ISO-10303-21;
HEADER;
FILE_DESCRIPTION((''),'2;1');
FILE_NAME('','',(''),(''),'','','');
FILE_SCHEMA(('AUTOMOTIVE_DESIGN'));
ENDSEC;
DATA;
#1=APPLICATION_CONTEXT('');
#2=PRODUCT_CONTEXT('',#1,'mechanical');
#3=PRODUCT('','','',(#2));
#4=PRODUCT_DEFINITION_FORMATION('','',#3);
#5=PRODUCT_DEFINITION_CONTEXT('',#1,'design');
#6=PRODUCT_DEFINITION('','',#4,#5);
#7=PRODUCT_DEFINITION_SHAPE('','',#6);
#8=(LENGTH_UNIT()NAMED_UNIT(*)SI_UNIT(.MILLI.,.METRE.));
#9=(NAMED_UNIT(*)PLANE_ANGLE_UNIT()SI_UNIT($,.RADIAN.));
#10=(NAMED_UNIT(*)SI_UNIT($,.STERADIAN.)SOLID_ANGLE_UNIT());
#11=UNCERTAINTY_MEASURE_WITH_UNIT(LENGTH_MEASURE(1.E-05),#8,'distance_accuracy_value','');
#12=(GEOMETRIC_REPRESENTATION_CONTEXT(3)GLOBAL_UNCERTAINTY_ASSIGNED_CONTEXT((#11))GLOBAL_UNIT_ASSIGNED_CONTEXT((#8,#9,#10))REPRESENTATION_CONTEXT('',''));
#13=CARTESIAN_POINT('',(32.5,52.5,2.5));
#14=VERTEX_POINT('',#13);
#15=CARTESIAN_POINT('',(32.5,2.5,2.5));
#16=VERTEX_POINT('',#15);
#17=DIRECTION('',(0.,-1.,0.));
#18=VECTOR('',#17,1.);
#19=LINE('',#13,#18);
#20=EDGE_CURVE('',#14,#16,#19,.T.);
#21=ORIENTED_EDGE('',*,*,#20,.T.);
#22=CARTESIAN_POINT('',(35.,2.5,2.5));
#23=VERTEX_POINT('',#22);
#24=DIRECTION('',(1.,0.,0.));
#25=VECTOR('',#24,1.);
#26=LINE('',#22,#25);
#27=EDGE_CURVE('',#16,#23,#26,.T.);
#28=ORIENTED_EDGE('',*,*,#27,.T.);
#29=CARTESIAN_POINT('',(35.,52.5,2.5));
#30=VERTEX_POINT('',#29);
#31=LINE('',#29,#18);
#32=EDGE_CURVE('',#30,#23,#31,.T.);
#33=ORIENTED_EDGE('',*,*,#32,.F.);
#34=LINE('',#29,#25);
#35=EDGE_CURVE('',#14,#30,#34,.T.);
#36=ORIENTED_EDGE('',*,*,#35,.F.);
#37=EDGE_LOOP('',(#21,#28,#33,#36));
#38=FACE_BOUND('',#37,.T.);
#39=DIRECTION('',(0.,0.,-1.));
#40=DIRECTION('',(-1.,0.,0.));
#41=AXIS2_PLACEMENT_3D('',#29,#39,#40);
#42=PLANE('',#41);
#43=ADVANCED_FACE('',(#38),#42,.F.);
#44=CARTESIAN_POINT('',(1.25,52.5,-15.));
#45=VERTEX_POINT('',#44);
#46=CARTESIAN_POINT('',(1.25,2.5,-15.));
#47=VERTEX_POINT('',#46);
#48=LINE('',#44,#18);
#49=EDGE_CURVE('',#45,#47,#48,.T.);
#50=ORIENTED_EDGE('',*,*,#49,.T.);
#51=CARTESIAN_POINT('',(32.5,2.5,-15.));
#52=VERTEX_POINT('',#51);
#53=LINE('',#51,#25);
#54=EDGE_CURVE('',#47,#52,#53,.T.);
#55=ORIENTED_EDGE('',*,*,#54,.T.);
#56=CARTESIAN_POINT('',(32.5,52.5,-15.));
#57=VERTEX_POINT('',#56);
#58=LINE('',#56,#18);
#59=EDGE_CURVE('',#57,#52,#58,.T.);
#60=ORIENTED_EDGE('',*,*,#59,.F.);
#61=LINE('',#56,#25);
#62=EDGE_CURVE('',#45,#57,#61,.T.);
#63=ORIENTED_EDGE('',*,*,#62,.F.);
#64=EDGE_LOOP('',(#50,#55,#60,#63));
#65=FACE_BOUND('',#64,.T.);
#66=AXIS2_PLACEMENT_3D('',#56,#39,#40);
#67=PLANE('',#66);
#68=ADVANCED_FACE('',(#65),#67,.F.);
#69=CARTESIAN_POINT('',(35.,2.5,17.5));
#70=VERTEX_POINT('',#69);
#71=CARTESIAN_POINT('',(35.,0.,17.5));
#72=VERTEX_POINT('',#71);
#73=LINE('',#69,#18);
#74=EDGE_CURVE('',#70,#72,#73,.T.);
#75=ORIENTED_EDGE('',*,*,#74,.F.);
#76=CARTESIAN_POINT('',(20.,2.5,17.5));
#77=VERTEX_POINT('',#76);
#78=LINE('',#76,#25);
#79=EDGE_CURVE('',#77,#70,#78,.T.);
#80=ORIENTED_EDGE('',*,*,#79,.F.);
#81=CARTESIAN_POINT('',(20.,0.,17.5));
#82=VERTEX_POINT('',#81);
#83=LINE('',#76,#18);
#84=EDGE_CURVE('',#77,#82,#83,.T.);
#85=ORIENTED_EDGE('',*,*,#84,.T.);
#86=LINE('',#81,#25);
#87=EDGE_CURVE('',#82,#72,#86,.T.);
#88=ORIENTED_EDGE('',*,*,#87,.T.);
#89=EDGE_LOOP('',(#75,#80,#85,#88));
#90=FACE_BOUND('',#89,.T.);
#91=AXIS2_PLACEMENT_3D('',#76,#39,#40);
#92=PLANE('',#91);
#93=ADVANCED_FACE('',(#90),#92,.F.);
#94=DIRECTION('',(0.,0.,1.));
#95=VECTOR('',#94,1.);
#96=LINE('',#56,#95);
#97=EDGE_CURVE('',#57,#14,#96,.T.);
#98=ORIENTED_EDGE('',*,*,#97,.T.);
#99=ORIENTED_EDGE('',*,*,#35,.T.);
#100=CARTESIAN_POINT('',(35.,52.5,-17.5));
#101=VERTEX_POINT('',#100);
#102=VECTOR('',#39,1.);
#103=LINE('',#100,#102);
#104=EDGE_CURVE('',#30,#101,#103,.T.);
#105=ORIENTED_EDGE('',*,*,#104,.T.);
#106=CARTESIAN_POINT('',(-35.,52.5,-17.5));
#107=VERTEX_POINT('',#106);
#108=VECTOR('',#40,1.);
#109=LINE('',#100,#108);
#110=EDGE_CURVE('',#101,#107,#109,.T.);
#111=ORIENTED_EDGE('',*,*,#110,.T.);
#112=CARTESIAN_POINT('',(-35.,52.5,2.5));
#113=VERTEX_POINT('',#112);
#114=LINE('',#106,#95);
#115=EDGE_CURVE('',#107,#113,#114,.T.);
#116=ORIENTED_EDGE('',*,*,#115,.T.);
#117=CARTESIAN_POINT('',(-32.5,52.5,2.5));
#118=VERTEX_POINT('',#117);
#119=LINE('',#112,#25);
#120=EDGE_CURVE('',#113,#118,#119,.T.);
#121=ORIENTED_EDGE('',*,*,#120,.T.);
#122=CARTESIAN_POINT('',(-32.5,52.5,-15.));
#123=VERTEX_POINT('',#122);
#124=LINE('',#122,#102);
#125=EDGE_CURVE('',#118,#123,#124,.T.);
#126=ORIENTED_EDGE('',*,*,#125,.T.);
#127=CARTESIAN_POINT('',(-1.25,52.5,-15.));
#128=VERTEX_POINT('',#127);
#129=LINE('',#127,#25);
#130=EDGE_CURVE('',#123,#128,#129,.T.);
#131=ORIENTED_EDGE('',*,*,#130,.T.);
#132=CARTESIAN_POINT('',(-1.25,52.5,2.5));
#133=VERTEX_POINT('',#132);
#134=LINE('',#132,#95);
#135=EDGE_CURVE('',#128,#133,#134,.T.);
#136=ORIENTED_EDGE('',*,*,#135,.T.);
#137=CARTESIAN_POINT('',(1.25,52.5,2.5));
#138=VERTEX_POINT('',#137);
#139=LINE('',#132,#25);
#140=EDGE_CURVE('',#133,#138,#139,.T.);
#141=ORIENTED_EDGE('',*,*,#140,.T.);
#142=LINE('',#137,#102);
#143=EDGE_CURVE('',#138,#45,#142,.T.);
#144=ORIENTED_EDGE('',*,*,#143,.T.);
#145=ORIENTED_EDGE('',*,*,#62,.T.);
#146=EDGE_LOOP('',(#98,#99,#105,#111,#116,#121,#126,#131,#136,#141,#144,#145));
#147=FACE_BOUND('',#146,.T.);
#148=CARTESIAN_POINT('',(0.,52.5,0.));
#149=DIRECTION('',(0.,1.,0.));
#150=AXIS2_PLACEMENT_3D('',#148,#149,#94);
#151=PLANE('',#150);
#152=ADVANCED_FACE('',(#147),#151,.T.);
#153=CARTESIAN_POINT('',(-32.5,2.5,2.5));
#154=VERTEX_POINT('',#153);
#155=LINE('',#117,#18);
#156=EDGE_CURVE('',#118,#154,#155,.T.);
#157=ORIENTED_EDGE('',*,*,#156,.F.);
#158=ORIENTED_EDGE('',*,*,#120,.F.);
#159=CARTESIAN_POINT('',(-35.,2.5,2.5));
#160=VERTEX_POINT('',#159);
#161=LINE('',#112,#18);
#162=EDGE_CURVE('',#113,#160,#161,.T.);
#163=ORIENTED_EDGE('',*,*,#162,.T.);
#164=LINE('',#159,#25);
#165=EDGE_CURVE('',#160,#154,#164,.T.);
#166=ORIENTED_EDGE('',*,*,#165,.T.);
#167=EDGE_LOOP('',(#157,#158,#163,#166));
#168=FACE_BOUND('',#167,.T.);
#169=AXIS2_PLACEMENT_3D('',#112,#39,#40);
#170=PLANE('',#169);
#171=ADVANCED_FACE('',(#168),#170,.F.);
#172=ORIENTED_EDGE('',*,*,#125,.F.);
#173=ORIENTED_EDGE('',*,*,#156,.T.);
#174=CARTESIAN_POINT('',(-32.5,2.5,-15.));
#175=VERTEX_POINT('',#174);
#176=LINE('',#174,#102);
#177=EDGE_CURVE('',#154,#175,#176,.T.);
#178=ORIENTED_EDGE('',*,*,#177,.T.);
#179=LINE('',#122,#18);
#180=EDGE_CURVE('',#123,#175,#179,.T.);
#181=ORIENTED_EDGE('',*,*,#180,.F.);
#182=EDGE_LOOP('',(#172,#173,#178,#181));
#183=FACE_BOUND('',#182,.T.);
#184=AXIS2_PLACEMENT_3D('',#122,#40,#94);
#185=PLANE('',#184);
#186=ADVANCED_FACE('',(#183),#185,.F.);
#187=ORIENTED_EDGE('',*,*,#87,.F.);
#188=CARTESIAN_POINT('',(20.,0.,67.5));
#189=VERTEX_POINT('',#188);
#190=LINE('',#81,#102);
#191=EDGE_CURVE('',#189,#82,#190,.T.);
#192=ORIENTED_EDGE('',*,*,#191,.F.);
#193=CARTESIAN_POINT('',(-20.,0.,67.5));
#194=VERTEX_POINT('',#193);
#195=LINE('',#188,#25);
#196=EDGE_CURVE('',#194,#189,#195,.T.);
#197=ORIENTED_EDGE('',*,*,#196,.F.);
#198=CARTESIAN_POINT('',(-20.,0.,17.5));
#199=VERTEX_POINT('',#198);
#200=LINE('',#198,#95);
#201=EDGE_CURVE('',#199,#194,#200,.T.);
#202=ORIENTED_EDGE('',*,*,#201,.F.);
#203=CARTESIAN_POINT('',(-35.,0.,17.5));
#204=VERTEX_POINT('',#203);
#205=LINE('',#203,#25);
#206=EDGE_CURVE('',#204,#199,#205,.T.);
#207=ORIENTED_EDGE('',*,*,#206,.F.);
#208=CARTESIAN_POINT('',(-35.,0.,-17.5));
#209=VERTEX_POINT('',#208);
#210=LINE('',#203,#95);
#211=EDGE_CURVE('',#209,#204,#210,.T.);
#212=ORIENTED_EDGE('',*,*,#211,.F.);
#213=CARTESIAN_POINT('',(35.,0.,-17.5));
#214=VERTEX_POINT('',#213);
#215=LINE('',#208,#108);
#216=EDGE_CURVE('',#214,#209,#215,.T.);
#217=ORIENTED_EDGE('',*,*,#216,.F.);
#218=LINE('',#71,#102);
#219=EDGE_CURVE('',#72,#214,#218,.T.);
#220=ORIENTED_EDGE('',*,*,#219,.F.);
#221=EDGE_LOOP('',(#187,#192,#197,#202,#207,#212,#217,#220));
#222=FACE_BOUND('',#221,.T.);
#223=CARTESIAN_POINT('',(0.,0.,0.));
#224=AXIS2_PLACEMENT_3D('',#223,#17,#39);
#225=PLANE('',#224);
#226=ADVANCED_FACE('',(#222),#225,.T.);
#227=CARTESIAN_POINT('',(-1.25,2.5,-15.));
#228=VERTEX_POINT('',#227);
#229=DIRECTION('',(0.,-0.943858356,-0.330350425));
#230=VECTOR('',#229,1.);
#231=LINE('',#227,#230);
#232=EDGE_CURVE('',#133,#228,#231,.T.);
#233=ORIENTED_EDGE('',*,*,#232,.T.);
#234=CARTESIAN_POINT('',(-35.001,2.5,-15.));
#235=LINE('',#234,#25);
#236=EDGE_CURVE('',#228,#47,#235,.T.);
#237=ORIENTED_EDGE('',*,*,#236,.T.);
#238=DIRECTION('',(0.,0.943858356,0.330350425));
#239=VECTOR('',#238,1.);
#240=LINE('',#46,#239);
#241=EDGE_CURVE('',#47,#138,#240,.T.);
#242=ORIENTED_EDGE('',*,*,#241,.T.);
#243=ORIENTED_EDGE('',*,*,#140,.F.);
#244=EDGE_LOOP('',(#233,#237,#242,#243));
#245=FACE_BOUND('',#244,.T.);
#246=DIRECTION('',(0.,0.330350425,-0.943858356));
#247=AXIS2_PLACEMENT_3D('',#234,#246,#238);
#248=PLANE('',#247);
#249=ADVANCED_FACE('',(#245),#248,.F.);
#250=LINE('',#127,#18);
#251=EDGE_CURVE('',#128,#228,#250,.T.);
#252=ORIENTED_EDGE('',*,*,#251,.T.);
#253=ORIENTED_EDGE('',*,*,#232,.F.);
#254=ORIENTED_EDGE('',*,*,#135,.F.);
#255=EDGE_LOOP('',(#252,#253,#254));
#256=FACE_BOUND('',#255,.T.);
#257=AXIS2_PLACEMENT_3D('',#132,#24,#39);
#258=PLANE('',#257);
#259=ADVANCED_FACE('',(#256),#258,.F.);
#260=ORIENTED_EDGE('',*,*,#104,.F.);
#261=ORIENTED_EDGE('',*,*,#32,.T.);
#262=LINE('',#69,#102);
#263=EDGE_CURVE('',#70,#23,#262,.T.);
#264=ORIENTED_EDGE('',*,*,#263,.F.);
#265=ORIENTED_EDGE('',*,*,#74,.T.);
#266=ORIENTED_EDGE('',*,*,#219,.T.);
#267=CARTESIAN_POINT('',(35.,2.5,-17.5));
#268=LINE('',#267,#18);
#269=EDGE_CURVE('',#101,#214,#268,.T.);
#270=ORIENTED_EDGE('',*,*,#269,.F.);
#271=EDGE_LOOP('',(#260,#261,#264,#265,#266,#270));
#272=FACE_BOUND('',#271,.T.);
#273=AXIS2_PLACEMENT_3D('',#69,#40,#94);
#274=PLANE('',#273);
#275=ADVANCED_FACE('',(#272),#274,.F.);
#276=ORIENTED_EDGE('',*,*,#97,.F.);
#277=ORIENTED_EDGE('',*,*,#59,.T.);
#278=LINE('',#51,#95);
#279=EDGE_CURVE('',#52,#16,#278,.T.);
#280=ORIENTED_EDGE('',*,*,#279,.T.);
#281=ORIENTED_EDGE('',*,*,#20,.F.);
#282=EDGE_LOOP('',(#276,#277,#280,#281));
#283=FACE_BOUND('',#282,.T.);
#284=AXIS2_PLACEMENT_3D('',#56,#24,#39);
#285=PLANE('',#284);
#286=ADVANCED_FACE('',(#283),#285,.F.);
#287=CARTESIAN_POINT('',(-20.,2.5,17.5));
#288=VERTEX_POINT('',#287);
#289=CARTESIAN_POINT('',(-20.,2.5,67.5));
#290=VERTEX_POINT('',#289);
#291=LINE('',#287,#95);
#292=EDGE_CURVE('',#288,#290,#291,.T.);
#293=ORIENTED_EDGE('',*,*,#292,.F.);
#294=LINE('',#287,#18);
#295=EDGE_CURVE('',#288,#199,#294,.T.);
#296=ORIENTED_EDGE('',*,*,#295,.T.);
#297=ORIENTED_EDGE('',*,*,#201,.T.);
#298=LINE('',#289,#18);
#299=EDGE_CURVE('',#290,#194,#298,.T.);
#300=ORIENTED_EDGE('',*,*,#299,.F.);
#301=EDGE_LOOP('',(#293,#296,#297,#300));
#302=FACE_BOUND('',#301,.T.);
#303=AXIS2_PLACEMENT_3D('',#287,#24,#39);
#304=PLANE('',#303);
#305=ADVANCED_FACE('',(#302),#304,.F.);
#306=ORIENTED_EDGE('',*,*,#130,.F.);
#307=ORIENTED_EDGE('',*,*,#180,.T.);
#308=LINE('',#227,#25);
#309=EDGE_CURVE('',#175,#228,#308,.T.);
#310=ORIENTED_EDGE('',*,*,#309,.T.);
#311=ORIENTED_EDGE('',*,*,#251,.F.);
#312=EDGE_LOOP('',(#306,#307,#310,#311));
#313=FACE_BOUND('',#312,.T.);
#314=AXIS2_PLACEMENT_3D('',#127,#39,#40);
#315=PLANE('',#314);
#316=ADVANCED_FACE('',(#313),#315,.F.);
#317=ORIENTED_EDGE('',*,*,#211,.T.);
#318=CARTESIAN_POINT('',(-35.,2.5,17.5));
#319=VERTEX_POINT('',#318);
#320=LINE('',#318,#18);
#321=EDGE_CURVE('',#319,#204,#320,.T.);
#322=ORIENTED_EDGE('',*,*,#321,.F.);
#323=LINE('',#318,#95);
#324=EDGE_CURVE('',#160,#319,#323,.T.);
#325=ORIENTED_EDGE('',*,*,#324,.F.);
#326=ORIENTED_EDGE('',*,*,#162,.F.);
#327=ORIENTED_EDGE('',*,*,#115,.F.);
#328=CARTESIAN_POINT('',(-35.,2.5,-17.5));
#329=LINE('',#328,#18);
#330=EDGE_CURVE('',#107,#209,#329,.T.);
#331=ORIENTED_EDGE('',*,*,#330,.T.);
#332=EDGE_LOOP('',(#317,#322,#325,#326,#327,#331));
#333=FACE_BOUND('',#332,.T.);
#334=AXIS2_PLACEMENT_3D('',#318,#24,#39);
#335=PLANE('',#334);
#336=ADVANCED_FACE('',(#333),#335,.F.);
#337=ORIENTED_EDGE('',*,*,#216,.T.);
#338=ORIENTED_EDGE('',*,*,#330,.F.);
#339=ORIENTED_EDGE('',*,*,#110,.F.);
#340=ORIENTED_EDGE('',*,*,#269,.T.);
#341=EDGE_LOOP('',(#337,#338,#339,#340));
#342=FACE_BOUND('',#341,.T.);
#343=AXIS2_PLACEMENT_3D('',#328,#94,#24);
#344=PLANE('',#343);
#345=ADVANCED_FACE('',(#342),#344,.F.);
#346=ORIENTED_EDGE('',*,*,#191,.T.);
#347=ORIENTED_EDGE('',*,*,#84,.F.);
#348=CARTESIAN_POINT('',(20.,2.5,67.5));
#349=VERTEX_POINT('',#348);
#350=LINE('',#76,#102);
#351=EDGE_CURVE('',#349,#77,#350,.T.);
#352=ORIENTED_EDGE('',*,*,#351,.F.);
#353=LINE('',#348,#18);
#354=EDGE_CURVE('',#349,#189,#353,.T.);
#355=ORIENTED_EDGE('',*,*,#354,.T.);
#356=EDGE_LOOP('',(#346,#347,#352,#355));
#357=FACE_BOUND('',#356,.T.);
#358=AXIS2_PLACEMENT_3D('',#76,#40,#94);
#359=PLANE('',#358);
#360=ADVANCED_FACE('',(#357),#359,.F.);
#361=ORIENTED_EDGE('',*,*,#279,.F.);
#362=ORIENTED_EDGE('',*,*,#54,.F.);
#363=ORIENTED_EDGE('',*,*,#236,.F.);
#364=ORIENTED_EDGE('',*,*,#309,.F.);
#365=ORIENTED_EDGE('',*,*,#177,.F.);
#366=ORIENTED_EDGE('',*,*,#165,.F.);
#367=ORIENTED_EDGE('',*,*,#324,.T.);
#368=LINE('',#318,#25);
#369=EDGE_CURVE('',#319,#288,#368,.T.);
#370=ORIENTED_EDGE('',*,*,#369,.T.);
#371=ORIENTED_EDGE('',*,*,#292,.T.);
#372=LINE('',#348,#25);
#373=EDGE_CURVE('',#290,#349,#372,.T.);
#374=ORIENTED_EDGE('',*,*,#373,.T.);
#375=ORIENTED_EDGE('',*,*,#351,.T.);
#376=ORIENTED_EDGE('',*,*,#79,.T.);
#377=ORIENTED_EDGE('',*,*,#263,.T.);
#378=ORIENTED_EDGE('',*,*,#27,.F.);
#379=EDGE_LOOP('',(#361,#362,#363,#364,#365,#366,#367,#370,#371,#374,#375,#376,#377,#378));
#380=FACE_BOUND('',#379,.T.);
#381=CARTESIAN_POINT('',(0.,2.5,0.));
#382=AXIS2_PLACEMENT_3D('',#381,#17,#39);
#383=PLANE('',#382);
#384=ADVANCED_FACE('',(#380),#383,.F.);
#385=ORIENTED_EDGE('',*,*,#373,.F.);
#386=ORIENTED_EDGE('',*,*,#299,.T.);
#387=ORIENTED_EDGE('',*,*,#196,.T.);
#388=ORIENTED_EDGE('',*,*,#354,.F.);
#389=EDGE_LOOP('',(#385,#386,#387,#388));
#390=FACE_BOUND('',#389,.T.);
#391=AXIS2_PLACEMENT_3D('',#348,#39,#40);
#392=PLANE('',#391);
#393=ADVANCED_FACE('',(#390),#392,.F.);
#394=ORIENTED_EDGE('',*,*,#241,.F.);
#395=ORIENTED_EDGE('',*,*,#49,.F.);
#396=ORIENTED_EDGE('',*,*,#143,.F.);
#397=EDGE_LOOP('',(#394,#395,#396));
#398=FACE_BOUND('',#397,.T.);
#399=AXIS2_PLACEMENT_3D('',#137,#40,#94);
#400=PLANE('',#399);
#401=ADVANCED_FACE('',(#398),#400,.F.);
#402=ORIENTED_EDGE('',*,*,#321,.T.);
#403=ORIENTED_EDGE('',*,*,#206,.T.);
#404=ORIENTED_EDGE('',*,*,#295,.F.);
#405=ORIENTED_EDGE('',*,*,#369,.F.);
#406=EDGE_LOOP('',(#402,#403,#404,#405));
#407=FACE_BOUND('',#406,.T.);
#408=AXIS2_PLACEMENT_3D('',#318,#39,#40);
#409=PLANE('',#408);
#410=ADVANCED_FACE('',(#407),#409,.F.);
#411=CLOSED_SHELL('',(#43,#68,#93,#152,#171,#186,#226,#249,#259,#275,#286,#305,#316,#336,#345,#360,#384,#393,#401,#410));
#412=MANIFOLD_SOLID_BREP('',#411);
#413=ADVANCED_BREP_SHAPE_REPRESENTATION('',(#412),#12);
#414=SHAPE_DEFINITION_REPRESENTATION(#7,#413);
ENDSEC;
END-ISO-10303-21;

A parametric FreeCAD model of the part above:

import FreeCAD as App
import Part
import Sketcher

doc = App.newDocument("Part")
body = doc.addObject("PartDesign::Body", "Body")

# Sketch on XZ plane
sketch1 = doc.addObject("Sketcher::SketchObject", "Sketch")
body.addObject(sketch1)
sketch1.AttachmentSupport = (doc.XZ_Plane, [""])
sketch1.MapMode = "FlatFace"
sketch1.addGeometry([
    Part.LineSegment(App.Vector(20, 17.5, 0), App.Vector(35, 17.5, 0)),  # 0
    Part.LineSegment(App.Vector(35, 17.5, 0), App.Vector(35, -17.5, 0)),  # 1
    Part.LineSegment(App.Vector(35, -17.5, 0), App.Vector(-35, -17.5, 0)),  # 2
    Part.LineSegment(App.Vector(-35, -17.5, 0), App.Vector(-35, 17.5, 0)),  # 3
    Part.LineSegment(App.Vector(-35, 17.5, 0), App.Vector(-20, 17.5, 0)),  # 4
    Part.LineSegment(App.Vector(-20, 17.5, 0), App.Vector(-20, 67.5, 0)),  # 5
    Part.LineSegment(App.Vector(-20, 67.5, 0), App.Vector(20, 67.5, 0)),  # 6
    Part.LineSegment(App.Vector(20, 67.5, 0), App.Vector(20, 17.5, 0)),  # 7
], False)
sketch1.addConstraint([
    Sketcher.Constraint("Coincident", 0, 2, 1, 1),
    Sketcher.Constraint("Coincident", 1, 2, 2, 1),
    Sketcher.Constraint("Coincident", 2, 2, 3, 1),
    Sketcher.Constraint("Coincident", 3, 2, 4, 1),
    Sketcher.Constraint("Coincident", 4, 2, 5, 1),
    Sketcher.Constraint("Coincident", 5, 2, 6, 1),
    Sketcher.Constraint("Coincident", 6, 2, 7, 1),
    Sketcher.Constraint("Coincident", 7, 2, 0, 1),
    Sketcher.Constraint("Horizontal", 0),
    Sketcher.Constraint("Vertical", 1),
    Sketcher.Constraint("Horizontal", 2),
    Sketcher.Constraint("Vertical", 3),
    Sketcher.Constraint("Horizontal", 4),
    Sketcher.Constraint("Vertical", 5),
    Sketcher.Constraint("Horizontal", 6),
    Sketcher.Constraint("Vertical", 7),
    Sketcher.Constraint("Symmetric", 0, 2, 2, 2, -1, 1),
    Sketcher.Constraint("Symmetric", 4, 2, 7, 2, -2),
    Sketcher.Constraint("DistanceX", 0, 1, 0, 2, 15.0),
    Sketcher.Constraint("DistanceX", 2, 2, 2, 1, 70.0),
    Sketcher.Constraint("DistanceY", 1, 2, 1, 1, 35.0),
    Sketcher.Constraint("DistanceY", 5, 1, 5, 2, 50.0),
])
pad1 = doc.addObject("PartDesign::Pad", "Pad")
body.addObject(pad1)
pad1.Profile = sketch1
pad1.Length = 2.5
pad1.Reversed = True

# Sketch on XZ plane
sketch2 = doc.addObject("Sketcher::SketchObject", "Sketch001")
body.addObject(sketch2)
sketch2.AttachmentSupport = (doc.XZ_Plane, [""])
sketch2.MapMode = "FlatFace"
sketch2.AttachmentOffset = App.Placement(App.Vector(0, 0, -2.5), App.Rotation())
sketch2.addGeometry([
    Part.LineSegment(App.Vector(35, -17.5, 0), App.Vector(-35, -17.5, 0)),  # 0
    Part.LineSegment(App.Vector(-35, -17.5, 0), App.Vector(-35, 2.5, 0)),  # 1
    Part.LineSegment(App.Vector(-35, 2.5, 0), App.Vector(-32.5, 2.5, 0)),  # 2
    Part.LineSegment(App.Vector(-32.5, 2.5, 0), App.Vector(-32.5, -15, 0)),  # 3
    Part.LineSegment(App.Vector(-32.5, -15, 0), App.Vector(-1.25, -15, 0)),  # 4
    Part.LineSegment(App.Vector(-1.25, -15, 0), App.Vector(-1.25, 2.5, 0)),  # 5
    Part.LineSegment(App.Vector(-1.25, 2.5, 0), App.Vector(1.25, 2.5, 0)),  # 6
    Part.LineSegment(App.Vector(1.25, 2.5, 0), App.Vector(1.25, -15, 0)),  # 7
    Part.LineSegment(App.Vector(1.25, -15, 0), App.Vector(32.5, -15, 0)),  # 8
    Part.LineSegment(App.Vector(32.5, -15, 0), App.Vector(32.5, 2.5, 0)),  # 9
    Part.LineSegment(App.Vector(32.5, 2.5, 0), App.Vector(35, 2.5, 0)),  # 10
    Part.LineSegment(App.Vector(35, 2.5, 0), App.Vector(35, -17.5, 0)),  # 11
], False)
sketch2.addConstraint([
    Sketcher.Constraint("Coincident", 0, 2, 1, 1),
    Sketcher.Constraint("Coincident", 1, 2, 2, 1),
    Sketcher.Constraint("Coincident", 2, 2, 3, 1),
    Sketcher.Constraint("Coincident", 3, 2, 4, 1),
    Sketcher.Constraint("Coincident", 4, 2, 5, 1),
    Sketcher.Constraint("Coincident", 5, 2, 6, 1),
    Sketcher.Constraint("Coincident", 6, 2, 7, 1),
    Sketcher.Constraint("Coincident", 7, 2, 8, 1),
    Sketcher.Constraint("Coincident", 8, 2, 9, 1),
    Sketcher.Constraint("Coincident", 9, 2, 10, 1),
    Sketcher.Constraint("Coincident", 10, 2, 11, 1),
    Sketcher.Constraint("Coincident", 11, 2, 0, 1),
    Sketcher.Constraint("Horizontal", 0),
    Sketcher.Constraint("Vertical", 1),
    Sketcher.Constraint("Horizontal", 2),
    Sketcher.Constraint("Vertical", 3),
    Sketcher.Constraint("Horizontal", 4),
    Sketcher.Constraint("Vertical", 5),
    Sketcher.Constraint("Horizontal", 6),
    Sketcher.Constraint("Vertical", 7),
    Sketcher.Constraint("Horizontal", 8),
    Sketcher.Constraint("Vertical", 9),
    Sketcher.Constraint("Horizontal", 10),
    Sketcher.Constraint("Vertical", 11),
    Sketcher.Constraint("Symmetric", 4, 2, 7, 2, -2),
    Sketcher.Constraint("Symmetric", 2, 2, 9, 2, -2),
    Sketcher.Constraint("Horizontal", 2, 2, 5, 2),
    Sketcher.Constraint("Equal", 2, 6),
    Sketcher.Constraint("Equal", 6, 10),
    Sketcher.Constraint("DistanceX", 0, 2, 0, 1, 70.0),
    Sketcher.Constraint("DistanceY", 1, 1, 1, 2, 20.0),
    Sketcher.Constraint("DistanceX", 2, 1, 2, 2, 2.5),
    Sketcher.Constraint("DistanceY", 3, 2, 3, 1, 17.5),
    Sketcher.Constraint("DistanceY", 3, 2, -1, 1, 15.0),
])
pad2 = doc.addObject("PartDesign::Pad", "Pad001")
body.addObject(pad2)
pad2.Profile = sketch2
pad2.Length = 50
pad2.Reversed = True

# Sketch on YZ plane
sketch3 = doc.addObject("Sketcher::SketchObject", "Sketch002")
body.addObject(sketch3)
sketch3.AttachmentSupport = (doc.YZ_Plane, [""])
sketch3.MapMode = "FlatFace"
sketch3.AttachmentOffset = App.Placement(App.Vector(0, 0, 1.25), App.Rotation())
sketch3.addGeometry([
    Part.LineSegment(App.Vector(2.5, -15, 0), App.Vector(52.5, 2.5, 0)),
    Part.LineSegment(App.Vector(52.5, 2.5, 0), App.Vector(2.5, 2.5, 0)),
    Part.LineSegment(App.Vector(2.5, 2.5, 0), App.Vector(2.5, -15, 0)),
], False)
sketch3.addConstraint([
    Sketcher.Constraint("Coincident", 0, 2, 1, 1),
    Sketcher.Constraint("Coincident", 1, 2, 2, 1),
    Sketcher.Constraint("Coincident", 2, 2, 0, 1),
    Sketcher.Constraint("Horizontal", 1),
    Sketcher.Constraint("Vertical", 2),
    Sketcher.Constraint("DistanceX", 1, 2, 1, 1, 50.0),
    Sketcher.Constraint("DistanceY", 2, 2, 2, 1, 17.5),
    Sketcher.Constraint("DistanceY", 2, 2, -1, 1, 15.0),
    Sketcher.Constraint("DistanceX", -1, 1, 0, 2, 52.5),
])
pocket1 = doc.addObject("PartDesign::Pocket", "Pocket")
body.addObject(pocket1)
pocket1.Profile = sketch3
pocket1.Type = "UpToFirst"

doc.recompute()
